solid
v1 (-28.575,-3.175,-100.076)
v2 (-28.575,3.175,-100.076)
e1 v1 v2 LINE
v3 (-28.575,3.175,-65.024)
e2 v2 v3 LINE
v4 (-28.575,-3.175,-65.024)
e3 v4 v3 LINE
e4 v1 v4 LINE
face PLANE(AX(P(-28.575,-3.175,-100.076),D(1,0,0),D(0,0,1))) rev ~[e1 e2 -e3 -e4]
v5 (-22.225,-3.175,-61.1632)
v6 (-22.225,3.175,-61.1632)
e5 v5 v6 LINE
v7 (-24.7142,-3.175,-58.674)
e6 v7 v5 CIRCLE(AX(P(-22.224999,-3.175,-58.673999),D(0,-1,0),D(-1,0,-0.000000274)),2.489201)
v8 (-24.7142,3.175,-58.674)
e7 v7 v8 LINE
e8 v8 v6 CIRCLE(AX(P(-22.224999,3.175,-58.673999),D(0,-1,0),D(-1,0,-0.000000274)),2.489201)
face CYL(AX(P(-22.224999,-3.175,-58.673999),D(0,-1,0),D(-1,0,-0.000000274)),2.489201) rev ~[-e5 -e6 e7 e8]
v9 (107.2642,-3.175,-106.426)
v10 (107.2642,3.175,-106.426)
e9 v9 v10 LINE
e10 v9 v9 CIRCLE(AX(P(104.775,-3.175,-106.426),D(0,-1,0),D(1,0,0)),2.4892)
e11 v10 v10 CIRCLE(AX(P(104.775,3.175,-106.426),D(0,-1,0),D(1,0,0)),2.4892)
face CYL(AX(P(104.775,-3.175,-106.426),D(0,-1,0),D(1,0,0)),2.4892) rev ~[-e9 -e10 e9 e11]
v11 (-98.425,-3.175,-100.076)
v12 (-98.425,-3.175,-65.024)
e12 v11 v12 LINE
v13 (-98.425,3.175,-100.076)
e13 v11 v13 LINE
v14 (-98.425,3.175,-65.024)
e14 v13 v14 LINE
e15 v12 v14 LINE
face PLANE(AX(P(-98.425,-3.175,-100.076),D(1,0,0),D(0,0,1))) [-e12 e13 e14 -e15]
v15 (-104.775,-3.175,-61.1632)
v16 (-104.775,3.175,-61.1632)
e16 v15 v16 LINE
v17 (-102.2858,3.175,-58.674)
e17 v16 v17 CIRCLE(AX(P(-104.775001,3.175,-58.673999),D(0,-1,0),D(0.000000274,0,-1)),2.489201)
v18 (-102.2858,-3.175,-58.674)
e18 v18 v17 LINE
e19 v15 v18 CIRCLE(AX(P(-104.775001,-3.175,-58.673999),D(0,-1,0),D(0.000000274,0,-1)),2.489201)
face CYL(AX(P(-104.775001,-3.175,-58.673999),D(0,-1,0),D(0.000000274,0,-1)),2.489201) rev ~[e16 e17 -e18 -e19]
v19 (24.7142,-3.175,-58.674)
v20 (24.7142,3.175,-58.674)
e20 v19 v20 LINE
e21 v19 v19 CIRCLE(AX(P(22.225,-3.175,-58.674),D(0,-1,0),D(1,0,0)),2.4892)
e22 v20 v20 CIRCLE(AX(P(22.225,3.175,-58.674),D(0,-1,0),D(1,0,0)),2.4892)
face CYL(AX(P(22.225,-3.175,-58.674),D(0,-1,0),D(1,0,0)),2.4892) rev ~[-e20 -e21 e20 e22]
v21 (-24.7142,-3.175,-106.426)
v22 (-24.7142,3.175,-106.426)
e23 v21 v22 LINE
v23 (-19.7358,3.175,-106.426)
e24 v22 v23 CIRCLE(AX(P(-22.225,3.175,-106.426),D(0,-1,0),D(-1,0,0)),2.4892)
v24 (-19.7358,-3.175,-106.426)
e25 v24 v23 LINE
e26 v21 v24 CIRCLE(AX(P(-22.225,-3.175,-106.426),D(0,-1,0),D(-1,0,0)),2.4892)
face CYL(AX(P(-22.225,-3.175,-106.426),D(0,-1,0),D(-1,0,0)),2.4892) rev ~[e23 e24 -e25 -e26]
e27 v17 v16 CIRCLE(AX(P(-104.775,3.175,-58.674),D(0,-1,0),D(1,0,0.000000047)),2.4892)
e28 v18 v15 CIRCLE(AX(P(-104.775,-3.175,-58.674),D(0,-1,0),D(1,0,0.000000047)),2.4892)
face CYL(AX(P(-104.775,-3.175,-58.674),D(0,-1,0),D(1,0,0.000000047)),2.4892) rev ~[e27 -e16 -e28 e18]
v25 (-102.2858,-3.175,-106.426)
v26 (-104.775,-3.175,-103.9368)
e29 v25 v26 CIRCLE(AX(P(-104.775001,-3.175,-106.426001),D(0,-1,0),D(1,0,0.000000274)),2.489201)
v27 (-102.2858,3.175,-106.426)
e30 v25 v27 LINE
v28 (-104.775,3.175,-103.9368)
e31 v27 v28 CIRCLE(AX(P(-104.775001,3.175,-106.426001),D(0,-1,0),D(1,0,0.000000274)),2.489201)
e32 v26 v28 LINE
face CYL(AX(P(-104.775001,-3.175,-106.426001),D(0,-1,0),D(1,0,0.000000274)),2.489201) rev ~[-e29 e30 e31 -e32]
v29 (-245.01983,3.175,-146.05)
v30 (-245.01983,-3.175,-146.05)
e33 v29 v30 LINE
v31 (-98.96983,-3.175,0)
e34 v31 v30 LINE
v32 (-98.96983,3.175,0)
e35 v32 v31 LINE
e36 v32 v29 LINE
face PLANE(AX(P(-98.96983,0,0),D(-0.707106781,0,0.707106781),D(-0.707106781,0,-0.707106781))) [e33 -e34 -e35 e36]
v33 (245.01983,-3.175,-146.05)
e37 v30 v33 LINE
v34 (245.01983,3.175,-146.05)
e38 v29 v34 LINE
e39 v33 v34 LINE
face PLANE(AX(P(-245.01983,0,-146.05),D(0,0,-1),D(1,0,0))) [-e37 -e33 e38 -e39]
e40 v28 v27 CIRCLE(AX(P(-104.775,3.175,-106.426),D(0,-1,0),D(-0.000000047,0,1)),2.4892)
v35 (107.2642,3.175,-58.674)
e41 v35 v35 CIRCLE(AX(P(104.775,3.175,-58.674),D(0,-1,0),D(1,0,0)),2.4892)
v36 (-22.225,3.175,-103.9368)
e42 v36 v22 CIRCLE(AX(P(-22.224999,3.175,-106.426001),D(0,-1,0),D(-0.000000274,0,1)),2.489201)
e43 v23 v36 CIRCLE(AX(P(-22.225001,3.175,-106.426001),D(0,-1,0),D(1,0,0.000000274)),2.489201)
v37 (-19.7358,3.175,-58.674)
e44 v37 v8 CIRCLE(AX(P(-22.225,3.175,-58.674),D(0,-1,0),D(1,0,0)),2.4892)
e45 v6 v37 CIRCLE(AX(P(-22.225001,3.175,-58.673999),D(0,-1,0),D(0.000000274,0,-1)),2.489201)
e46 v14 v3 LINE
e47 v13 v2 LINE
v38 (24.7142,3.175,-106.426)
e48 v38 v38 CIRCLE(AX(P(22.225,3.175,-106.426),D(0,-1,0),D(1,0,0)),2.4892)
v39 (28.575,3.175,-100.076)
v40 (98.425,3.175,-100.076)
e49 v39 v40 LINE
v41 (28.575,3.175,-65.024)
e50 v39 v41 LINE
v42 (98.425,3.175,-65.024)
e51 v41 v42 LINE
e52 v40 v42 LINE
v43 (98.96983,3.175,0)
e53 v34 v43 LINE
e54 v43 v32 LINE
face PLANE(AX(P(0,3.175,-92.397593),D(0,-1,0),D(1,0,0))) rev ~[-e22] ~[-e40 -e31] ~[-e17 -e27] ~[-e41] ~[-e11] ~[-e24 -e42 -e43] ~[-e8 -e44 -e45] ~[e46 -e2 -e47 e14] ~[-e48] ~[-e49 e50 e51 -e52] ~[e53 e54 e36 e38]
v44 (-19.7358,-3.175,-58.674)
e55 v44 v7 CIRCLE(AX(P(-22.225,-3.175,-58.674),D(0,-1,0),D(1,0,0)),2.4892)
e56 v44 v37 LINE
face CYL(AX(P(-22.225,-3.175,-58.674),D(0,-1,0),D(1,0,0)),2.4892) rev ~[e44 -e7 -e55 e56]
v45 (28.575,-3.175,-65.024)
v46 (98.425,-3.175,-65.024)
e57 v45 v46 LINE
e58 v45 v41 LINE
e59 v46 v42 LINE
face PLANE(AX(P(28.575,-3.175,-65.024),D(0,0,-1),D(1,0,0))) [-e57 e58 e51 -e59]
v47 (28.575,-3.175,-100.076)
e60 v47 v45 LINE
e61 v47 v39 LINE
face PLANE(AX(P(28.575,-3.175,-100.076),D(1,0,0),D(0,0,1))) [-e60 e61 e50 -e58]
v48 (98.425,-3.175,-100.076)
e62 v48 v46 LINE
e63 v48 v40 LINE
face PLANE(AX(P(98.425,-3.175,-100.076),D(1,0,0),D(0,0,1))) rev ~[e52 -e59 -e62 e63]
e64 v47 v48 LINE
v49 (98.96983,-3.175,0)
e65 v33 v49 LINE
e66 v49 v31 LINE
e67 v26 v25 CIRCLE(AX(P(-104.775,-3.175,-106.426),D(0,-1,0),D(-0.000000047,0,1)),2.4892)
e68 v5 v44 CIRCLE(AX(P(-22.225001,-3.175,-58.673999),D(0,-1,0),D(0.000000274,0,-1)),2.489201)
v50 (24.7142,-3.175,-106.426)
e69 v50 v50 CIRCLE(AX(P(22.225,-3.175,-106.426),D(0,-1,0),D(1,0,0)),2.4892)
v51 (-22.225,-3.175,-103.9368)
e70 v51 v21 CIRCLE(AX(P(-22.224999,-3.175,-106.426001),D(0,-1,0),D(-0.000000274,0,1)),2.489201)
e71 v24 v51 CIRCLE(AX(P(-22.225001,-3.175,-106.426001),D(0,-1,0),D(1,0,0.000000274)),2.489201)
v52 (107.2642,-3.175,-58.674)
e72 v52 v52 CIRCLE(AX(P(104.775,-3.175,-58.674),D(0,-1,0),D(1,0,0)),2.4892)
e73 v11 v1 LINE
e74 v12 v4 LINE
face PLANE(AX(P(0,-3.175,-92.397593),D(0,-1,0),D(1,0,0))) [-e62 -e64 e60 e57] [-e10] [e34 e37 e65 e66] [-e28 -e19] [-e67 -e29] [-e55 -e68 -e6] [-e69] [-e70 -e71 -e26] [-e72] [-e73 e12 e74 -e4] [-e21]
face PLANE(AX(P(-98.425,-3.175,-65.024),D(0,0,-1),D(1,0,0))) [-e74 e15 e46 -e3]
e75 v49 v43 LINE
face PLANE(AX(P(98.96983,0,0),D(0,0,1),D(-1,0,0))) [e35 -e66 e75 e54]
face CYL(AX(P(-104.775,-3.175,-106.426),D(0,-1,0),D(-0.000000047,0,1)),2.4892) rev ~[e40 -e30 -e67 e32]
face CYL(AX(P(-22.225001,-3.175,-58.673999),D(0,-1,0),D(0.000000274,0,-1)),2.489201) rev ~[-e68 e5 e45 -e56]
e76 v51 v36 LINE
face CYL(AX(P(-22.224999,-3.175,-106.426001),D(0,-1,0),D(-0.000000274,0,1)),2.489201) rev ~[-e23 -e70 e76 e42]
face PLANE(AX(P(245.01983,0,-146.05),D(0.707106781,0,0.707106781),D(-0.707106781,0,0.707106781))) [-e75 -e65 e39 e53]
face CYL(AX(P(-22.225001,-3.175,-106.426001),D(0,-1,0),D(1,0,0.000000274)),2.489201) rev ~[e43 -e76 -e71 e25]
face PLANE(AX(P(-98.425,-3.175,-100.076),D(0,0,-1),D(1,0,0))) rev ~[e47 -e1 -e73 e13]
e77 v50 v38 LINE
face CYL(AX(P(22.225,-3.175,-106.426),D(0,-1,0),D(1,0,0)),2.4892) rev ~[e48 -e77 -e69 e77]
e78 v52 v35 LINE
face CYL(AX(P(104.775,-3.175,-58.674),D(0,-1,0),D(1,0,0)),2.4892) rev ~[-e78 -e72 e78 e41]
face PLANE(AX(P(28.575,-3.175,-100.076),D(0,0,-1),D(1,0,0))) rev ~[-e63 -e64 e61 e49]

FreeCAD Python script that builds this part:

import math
import FreeCAD as App
import Part
import Sketcher

V = App.Vector
Q = App.Units.Quantity

doc = App.newDocument("Part")
params = doc.addObject("Spreadsheet::Sheet", "Params")
for row, (alias, value) in enumerate([
    ("pad1_length", "0.25 in"),
    ("sketch2_diameter", "0.196 in"),
    ("sketch2_width", "2.75 in"),
    ("sketch2_height", "1.38 in"),
], start=1):
    params.set(f"A{row}", alias)
    params.set(f"B{row}", "=" + value)
    params.setAlias(f"B{row}", alias)

body = doc.addObject("PartDesign::Body", "Body")

# Sketch on XZ plane
sketch1 = body.newObject("Sketcher::SketchObject", "Sketch")
sketch1.AttachmentSupport = (doc.getObject("XZ_Plane"), [""])
sketch1.MapMode = "FlatFace"
sketch1.addGeometry([
    Part.LineSegment(V(99, 0, 0), V(-99, 0, 0)),
    Part.LineSegment(V(-99, 0, 0), V(-245, -146, 0)),
    Part.LineSegment(V(-245, -146, 0), V(245, -146, 0)),
    Part.LineSegment(V(245, -146, 0), V(99, 0, 0)),
], False)
sketch1.addConstraint([
    Sketcher.Constraint("Coincident", 0, 2, 1, 1),
    Sketcher.Constraint("Coincident", 1, 2, 2, 1),
    Sketcher.Constraint("Coincident", 2, 2, 3, 1),
    Sketcher.Constraint("Coincident", 3, 2, 0, 1),
    Sketcher.Constraint("Horizontal", 0),
    Sketcher.Constraint("Horizontal", 2),
    Sketcher.Constraint("Symmetric", 0, 2, 3, 2, -1, 1),
    Sketcher.Constraint("Perpendicular", 1, 3),
    Sketcher.Constraint("Equal", 1, 3),
    Sketcher.Constraint("DistanceY", 1, 2, -1, 1, Q("5.75 in")),
    Sketcher.Constraint("DistanceX", 0, 2, 0, 1, Q("7.7929 in")),
])
pad1 = body.newObject("PartDesign::Pad", "Pad")
pad1.Profile = sketch1
pad1.setExpression("Length", "Params.pad1_length")
pad1.Midplane = True

# Sketch on XZ plane
sketch2 = body.newObject("Sketcher::SketchObject", "Sketch001")
sketch2.AttachmentSupport = (doc.getObject("XZ_Plane"), [""])
sketch2.MapMode = "FlatFace"
sketch2.AttachmentOffset = App.Placement(V(0, 0, 0.125 * 25.4), App.Rotation())
sketch2.addGeometry([
    Part.LineSegment(V(28.6, -65, 0), V(28.6, -100.1, 0)),  # 0
    Part.LineSegment(V(28.6, -100.1, 0), V(98.4, -100.1, 0)),  # 1
    Part.LineSegment(V(98.4, -100.1, 0), V(98.4, -65, 0)),  # 2
    Part.LineSegment(V(98.4, -65, 0), V(28.6, -65, 0)),  # 3
    Part.Circle(V(104.8, -58.7, 0), V(0, 0, 1), 2.5),  # 4
    Part.Circle(V(22.2, -58.7, 0), V(0, 0, 1), 2.5),  # 5
    Part.Circle(V(22.2, -106.4, 0), V(0, 0, 1), 2.5),  # 6
    Part.Circle(V(104.8, -106.4, 0), V(0, 0, 1), 2.5),  # 7
    Part.ArcOfCircle(Part.Circle(V(-22.2, -58.7, 0), V(0, 0, 1), 2.5), math.radians(0), math.radians(180)),  # 8
    Part.ArcOfCircle(Part.Circle(V(-22.2, -58.7, 0), V(0, 0, 1), 2.5), math.radians(-180), math.radians(-90)),  # 9
    Part.ArcOfCircle(Part.Circle(V(-22.2, -58.7, 0), V(0, 0, 1), 2.5), math.radians(-90), math.radians(0)),  # 10
    Part.ArcOfCircle(Part.Circle(V(-22.2, -106.4, 0), V(0, 0, 1), 2.5), math.radians(0), math.radians(90)),  # 11
    Part.ArcOfCircle(Part.Circle(V(-22.2, -106.4, 0), V(0, 0, 1), 2.5), math.radians(90), math.radians(180)),  # 12
    Part.ArcOfCircle(Part.Circle(V(-22.2, -106.4, 0), V(0, 0, 1), 2.5), math.radians(180), math.radians(360)),  # 13
    Part.LineSegment(V(-98.4, -65, 0), V(-98.4, -100.1, 0)),  # 14
    Part.LineSegment(V(-98.4, -100.1, 0), V(-28.6, -100.1, 0)),  # 15
    Part.LineSegment(V(-28.6, -100.1, 0), V(-28.6, -65, 0)),  # 16
    Part.LineSegment(V(-28.6, -65, 0), V(-98.4, -65, 0)),  # 17
    Part.ArcOfCircle(Part.Circle(V(-104.8, -58.7, 0), V(0, 0, 1), 2.5), math.radians(0), math.radians(270)),  # 18
    Part.ArcOfCircle(Part.Circle(V(-104.8, -58.7, 0), V(0, 0, 1), 2.5), math.radians(-90), math.radians(0)),  # 19
    Part.ArcOfCircle(Part.Circle(V(-104.8, -106.4, 0), V(0, 0, 1), 2.5), math.radians(90), math.radians(360)),  # 20
    Part.ArcOfCircle(Part.Circle(V(-104.8, -106.4, 0), V(0, 0, 1), 2.5), math.radians(0), math.radians(90)),  # 21
], False)
sketch2.addConstraint([
    Sketcher.Constraint("Coincident", 0, 2, 1, 1),
    Sketcher.Constraint("Coincident", 1, 2, 2, 1),
    Sketcher.Constraint("Coincident", 2, 2, 3, 1),
    Sketcher.Constraint("Coincident", 3, 2, 0, 1),
    Sketcher.Constraint("Tangent", 8, 2, 9, 1),
    Sketcher.Constraint("Tangent", 9, 2, 10, 1),
    Sketcher.Constraint("Tangent", 10, 2, 8, 1),
    Sketcher.Constraint("Tangent", 11, 2, 12, 1),
    Sketcher.Constraint("Tangent", 12, 2, 13, 1),
    Sketcher.Constraint("Tangent", 13, 2, 11, 1),
    Sketcher.Constraint("Coincident", 14, 2, 15, 1),
    Sketcher.Constraint("Coincident", 15, 2, 16, 1),
    Sketcher.Constraint("Coincident", 16, 2, 17, 1),
    Sketcher.Constraint("Coincident", 17, 2, 14, 1),
    Sketcher.Constraint("Tangent", 18, 1, 19, 2),
    Sketcher.Constraint("Coincident", 19, 1, 18, 2),
    Sketcher.Constraint("Tangent", 20, 1, 21, 2),
    Sketcher.Constraint("Coincident", 21, 1, 20, 2),
    Sketcher.Constraint("Vertical", 0),
    Sketcher.Constraint("Horizontal", 1),
    Sketcher.Constraint("Vertical", 2),
    Sketcher.Constraint("Horizontal", 3),
    Sketcher.Constraint("Vertical", 14),
    Sketcher.Constraint("Horizontal", 15),
    Sketcher.Constraint("Vertical", 16),
    Sketcher.Constraint("Horizontal", 17),
    Sketcher.Constraint("Equal", 4, 5),
    Sketcher.Constraint("Equal", 5, 6),
    Sketcher.Constraint("Equal", 6, 7),
    Sketcher.Constraint("Equal", 7, 8),
    Sketcher.Constraint("Equal", 10, 11),
    Sketcher.Constraint("Equal", 13, 18),
    Sketcher.Constraint("Equal", 19, 20),
    Sketcher.Constraint("Symmetric", 5, 3, 8, 3, -2),
    Sketcher.Constraint("Symmetric", 6, 3, 11, 3, -2),
    Sketcher.Constraint("Symmetric", 4, 3, 18, 3, -2),
    Sketcher.Constraint("Symmetric", 7, 3, 20, 3, -2),
    Sketcher.Constraint("Symmetric", 1, 2, 14, 2, -2),
    Sketcher.Constraint("Symmetric", 3, 2, 16, 2, -2),
    Sketcher.Constraint("Horizontal", 4, 3, 5, 3),
    Sketcher.Constraint("Horizontal", 6, 3, 7, 3),
    Sketcher.Constraint("Horizontal", 19, 3, 8, 2),
    Sketcher.Constraint("Horizontal", 8, 2, 10, 2),
    Sketcher.Constraint("Horizontal", 21, 3, 12, 2),
    Sketcher.Constraint("Horizontal", 12, 2, 13, 2),
    Sketcher.Constraint("Horizontal", 10, 2, 18, 1),
    Sketcher.Constraint("Horizontal", 13, 2, 21, 1),
    Sketcher.Constraint("Vertical", 5, 3, 6, 3),
    Sketcher.Constraint("Vertical", 4, 3, 7, 3),
    Sketcher.Constraint("Vertical", 13, 3, 9, 2),
    Sketcher.Constraint("Vertical", 9, 2, 11, 2),
    Sketcher.Constraint("Vertical", 21, 3, 19, 1),
    Sketcher.Constraint("Vertical", 19, 1, 20, 1),
    Sketcher.Constraint("Diameter", 4, Q("0.196 in")),
    Sketcher.Constraint("DistanceX", 8, 3, 4, 3, Q("5 in")),
    Sketcher.Constraint("DistanceX", 12, 3, 0, 2, Q("2 in")),
    Sketcher.Constraint("DistanceX", 6, 3, 1, 2, Q("3 in")),
    Sketcher.Constraint("DistanceX", 1, 1, 1, 2, Q("2.75 in")),
    Sketcher.Constraint("DistanceY", 0, 2, 0, 1, Q("1.38 in")),
    Sketcher.Constraint("DistanceY", 4, 3, -1, 1, Q("2.31 in")),
    Sketcher.Constraint("DistanceY", 6, 3, -1, 1, Q("4.19 in")),
    Sketcher.Constraint("DistanceY", 0, 2, -1, 1, Q("3.94 in")),
])
sketch2.setExpression("Constraints[53]", "Params.sketch2_diameter")
sketch2.setExpression("Constraints[57]", "Params.sketch2_width")
sketch2.setExpression("Constraints[58]", "Params.sketch2_height")
pocket1 = body.newObject("PartDesign::Pocket", "Pocket")
pocket1.Profile = sketch2
pocket1.Type = "ThroughAll"

doc.recompute()
